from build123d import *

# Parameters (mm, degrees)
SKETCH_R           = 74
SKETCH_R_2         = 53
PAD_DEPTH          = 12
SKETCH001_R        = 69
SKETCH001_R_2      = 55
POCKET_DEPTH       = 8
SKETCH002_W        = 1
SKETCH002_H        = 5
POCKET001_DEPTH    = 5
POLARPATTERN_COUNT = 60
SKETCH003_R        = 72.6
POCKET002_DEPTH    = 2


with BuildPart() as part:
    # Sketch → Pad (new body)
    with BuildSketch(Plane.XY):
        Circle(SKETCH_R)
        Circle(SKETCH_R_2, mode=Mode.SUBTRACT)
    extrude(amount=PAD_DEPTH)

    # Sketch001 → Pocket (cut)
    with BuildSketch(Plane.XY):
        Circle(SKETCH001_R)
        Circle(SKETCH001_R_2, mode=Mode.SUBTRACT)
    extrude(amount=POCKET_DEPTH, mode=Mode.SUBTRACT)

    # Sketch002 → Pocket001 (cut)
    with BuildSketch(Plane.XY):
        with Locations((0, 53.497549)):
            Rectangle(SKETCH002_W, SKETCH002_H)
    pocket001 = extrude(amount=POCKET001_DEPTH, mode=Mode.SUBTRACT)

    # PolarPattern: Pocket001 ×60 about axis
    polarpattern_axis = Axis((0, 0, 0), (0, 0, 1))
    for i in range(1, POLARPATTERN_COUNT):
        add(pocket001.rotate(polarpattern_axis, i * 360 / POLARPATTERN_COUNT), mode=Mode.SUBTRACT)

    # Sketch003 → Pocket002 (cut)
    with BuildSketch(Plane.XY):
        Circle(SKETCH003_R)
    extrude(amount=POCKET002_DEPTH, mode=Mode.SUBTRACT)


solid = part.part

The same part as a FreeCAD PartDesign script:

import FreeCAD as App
import Part
import Sketcher

V = App.Vector

doc = App.newDocument("Part")
params = doc.addObject("Spreadsheet::Sheet", "Params")
for row, (alias, value) in enumerate([
    ("sketch1_diameter", "148 mm"),
    ("sketch1_diameter2", "106 mm"),
    ("pad1_length", "12 mm"),
    ("sketch2_diameter", "138 mm"),
    ("sketch2_diameter2", "110 mm"),
    ("pocket1_length", "8 mm"),
    ("sketch3_width", "1 mm"),
    ("sketch3_height", "5 mm"),
    ("pocket2_length", "5 mm"),
    ("sketch4_diameter", "145.2 mm"),
    ("pocket3_length", "2 mm"),
], start=1):
    params.set(f"A{row}", alias)
    params.set(f"B{row}", "=" + value)
    params.setAlias(f"B{row}", alias)

body = doc.addObject("PartDesign::Body", "Body")

sketch1 = body.newObject("Sketcher::SketchObject", "Sketch")
sketch1.AttachmentSupport = (doc.getObject("XY_Plane"), [""])
sketch1.MapMode = "FlatFace"
sketch1.addGeometry([
    Part.Circle(V(0, 0, 0), V(0, 0, 1), 74),
    Part.Circle(V(0, 0, 0), V(0, 0, 1), 53),
], False)
sketch1.addConstraint([
    Sketcher.Constraint("Coincident", 0, 3, -1, 1),
    Sketcher.Constraint("Coincident", 1, 3, -1, 1),
    Sketcher.Constraint("Diameter", 0, 148.0),
    Sketcher.Constraint("Diameter", 1, 106.0),
])
sketch1.setExpression("Constraints[2]", "Params.sketch1_diameter")
sketch1.setExpression("Constraints[3]", "Params.sketch1_diameter2")
pad1 = body.newObject("PartDesign::Pad", "Pad")
pad1.Profile = sketch1
pad1.setExpression("Length", "Params.pad1_length")

sketch2 = body.newObject("Sketcher::SketchObject", "Sketch001")
sketch2.AttachmentSupport = (doc.getObject("XY_Plane"), [""])
sketch2.MapMode = "FlatFace"
sketch2.addGeometry([
    Part.Circle(V(0, 0, 0), V(0, 0, 1), 69),
    Part.Circle(V(0, 0, 0), V(0, 0, 1), 55),
], False)
sketch2.addConstraint([
    Sketcher.Constraint("Coincident", 0, 3, -1, 1),
    Sketcher.Constraint("Coincident", 1, 3, -1, 1),
    Sketcher.Constraint("Diameter", 0, 138.0),
    Sketcher.Constraint("Diameter", 1, 110.0),
])
sketch2.setExpression("Constraints[2]", "Params.sketch2_diameter")
sketch2.setExpression("Constraints[3]", "Params.sketch2_diameter2")
pocket1 = body.newObject("PartDesign::Pocket", "Pocket")
pocket1.Profile = sketch2
pocket1.setExpression("Length", "Params.pocket1_length")
pocket1.Reversed = True

sketch3 = body.newObject("Sketcher::SketchObject", "Sketch002")
sketch3.AttachmentSupport = (doc.getObject("XY_Plane"), [""])
sketch3.MapMode = "FlatFace"
sketch3.addGeometry([
    Part.LineSegment(V(-0.5, 56, 0), V(-0.5, 51, 0)),
    Part.LineSegment(V(-0.5, 51, 0), V(0.5, 51, 0)),
    Part.LineSegment(V(0.5, 51, 0), V(0.5, 56, 0)),
    Part.LineSegment(V(0.5, 56, 0), V(-0.5, 56, 0)),
], False)
sketch3.addConstraint([
    Sketcher.Constraint("Coincident", 0, 2, 1, 1),
    Sketcher.Constraint("Coincident", 1, 2, 2, 1),
    Sketcher.Constraint("Coincident", 2, 2, 3, 1),
    Sketcher.Constraint("Coincident", 3, 2, 0, 1),
    Sketcher.Constraint("Vertical", 0),
    Sketcher.Constraint("Horizontal", 1),
    Sketcher.Constraint("Vertical", 2),
    Sketcher.Constraint("Horizontal", 3),
    Sketcher.Constraint("DistanceX", 1, 1, 1, 2, 1.0),
    Sketcher.Constraint("DistanceY", 0, 2, 0, 1, 5.0),
    Sketcher.Constraint("DistanceX", 0, 2, -1, 1, 0.5),
    Sketcher.Constraint("DistanceY", -1, 1, 0, 2, 50.997549),
])
sketch3.setExpression("Constraints[8]", "Params.sketch3_width")
sketch3.setExpression("Constraints[9]", "Params.sketch3_height")
pocket2 = body.newObject("PartDesign::Pocket", "Pocket001")
pocket2.Profile = sketch3
pocket2.setExpression("Length", "Params.pocket2_length")
pocket2.Reversed = True
doc.recompute()

polarpattern = body.newObject("PartDesign::PolarPattern", "PolarPattern")
polarpattern.Originals = [pocket2]
polarpattern.Axis = (doc.getObject("Z_Axis"), [""])
polarpattern.Angle = 360
polarpattern.Occurrences = 60
body.Tip = polarpattern

sketch4 = body.newObject("Sketcher::SketchObject", "Sketch003")
sketch4.AttachmentSupport = (doc.getObject("XY_Plane"), [""])
sketch4.MapMode = "FlatFace"
sketch4.addGeometry(Part.Circle(V(0, 0, 0), V(0, 0, 1), 73), False)
sketch4.addConstraint([
    Sketcher.Constraint("Coincident", 0, 3, -1, 1),
    Sketcher.Constraint("Diameter", 0, 145.2),
])
sketch4.setExpression("Constraints[1]", "Params.sketch4_diameter")
pocket3 = body.newObject("PartDesign::Pocket", "Pocket002")
pocket3.Profile = sketch4
pocket3.setExpression("Length", "Params.pocket3_length")
pocket3.Reversed = True

doc.recompute()
